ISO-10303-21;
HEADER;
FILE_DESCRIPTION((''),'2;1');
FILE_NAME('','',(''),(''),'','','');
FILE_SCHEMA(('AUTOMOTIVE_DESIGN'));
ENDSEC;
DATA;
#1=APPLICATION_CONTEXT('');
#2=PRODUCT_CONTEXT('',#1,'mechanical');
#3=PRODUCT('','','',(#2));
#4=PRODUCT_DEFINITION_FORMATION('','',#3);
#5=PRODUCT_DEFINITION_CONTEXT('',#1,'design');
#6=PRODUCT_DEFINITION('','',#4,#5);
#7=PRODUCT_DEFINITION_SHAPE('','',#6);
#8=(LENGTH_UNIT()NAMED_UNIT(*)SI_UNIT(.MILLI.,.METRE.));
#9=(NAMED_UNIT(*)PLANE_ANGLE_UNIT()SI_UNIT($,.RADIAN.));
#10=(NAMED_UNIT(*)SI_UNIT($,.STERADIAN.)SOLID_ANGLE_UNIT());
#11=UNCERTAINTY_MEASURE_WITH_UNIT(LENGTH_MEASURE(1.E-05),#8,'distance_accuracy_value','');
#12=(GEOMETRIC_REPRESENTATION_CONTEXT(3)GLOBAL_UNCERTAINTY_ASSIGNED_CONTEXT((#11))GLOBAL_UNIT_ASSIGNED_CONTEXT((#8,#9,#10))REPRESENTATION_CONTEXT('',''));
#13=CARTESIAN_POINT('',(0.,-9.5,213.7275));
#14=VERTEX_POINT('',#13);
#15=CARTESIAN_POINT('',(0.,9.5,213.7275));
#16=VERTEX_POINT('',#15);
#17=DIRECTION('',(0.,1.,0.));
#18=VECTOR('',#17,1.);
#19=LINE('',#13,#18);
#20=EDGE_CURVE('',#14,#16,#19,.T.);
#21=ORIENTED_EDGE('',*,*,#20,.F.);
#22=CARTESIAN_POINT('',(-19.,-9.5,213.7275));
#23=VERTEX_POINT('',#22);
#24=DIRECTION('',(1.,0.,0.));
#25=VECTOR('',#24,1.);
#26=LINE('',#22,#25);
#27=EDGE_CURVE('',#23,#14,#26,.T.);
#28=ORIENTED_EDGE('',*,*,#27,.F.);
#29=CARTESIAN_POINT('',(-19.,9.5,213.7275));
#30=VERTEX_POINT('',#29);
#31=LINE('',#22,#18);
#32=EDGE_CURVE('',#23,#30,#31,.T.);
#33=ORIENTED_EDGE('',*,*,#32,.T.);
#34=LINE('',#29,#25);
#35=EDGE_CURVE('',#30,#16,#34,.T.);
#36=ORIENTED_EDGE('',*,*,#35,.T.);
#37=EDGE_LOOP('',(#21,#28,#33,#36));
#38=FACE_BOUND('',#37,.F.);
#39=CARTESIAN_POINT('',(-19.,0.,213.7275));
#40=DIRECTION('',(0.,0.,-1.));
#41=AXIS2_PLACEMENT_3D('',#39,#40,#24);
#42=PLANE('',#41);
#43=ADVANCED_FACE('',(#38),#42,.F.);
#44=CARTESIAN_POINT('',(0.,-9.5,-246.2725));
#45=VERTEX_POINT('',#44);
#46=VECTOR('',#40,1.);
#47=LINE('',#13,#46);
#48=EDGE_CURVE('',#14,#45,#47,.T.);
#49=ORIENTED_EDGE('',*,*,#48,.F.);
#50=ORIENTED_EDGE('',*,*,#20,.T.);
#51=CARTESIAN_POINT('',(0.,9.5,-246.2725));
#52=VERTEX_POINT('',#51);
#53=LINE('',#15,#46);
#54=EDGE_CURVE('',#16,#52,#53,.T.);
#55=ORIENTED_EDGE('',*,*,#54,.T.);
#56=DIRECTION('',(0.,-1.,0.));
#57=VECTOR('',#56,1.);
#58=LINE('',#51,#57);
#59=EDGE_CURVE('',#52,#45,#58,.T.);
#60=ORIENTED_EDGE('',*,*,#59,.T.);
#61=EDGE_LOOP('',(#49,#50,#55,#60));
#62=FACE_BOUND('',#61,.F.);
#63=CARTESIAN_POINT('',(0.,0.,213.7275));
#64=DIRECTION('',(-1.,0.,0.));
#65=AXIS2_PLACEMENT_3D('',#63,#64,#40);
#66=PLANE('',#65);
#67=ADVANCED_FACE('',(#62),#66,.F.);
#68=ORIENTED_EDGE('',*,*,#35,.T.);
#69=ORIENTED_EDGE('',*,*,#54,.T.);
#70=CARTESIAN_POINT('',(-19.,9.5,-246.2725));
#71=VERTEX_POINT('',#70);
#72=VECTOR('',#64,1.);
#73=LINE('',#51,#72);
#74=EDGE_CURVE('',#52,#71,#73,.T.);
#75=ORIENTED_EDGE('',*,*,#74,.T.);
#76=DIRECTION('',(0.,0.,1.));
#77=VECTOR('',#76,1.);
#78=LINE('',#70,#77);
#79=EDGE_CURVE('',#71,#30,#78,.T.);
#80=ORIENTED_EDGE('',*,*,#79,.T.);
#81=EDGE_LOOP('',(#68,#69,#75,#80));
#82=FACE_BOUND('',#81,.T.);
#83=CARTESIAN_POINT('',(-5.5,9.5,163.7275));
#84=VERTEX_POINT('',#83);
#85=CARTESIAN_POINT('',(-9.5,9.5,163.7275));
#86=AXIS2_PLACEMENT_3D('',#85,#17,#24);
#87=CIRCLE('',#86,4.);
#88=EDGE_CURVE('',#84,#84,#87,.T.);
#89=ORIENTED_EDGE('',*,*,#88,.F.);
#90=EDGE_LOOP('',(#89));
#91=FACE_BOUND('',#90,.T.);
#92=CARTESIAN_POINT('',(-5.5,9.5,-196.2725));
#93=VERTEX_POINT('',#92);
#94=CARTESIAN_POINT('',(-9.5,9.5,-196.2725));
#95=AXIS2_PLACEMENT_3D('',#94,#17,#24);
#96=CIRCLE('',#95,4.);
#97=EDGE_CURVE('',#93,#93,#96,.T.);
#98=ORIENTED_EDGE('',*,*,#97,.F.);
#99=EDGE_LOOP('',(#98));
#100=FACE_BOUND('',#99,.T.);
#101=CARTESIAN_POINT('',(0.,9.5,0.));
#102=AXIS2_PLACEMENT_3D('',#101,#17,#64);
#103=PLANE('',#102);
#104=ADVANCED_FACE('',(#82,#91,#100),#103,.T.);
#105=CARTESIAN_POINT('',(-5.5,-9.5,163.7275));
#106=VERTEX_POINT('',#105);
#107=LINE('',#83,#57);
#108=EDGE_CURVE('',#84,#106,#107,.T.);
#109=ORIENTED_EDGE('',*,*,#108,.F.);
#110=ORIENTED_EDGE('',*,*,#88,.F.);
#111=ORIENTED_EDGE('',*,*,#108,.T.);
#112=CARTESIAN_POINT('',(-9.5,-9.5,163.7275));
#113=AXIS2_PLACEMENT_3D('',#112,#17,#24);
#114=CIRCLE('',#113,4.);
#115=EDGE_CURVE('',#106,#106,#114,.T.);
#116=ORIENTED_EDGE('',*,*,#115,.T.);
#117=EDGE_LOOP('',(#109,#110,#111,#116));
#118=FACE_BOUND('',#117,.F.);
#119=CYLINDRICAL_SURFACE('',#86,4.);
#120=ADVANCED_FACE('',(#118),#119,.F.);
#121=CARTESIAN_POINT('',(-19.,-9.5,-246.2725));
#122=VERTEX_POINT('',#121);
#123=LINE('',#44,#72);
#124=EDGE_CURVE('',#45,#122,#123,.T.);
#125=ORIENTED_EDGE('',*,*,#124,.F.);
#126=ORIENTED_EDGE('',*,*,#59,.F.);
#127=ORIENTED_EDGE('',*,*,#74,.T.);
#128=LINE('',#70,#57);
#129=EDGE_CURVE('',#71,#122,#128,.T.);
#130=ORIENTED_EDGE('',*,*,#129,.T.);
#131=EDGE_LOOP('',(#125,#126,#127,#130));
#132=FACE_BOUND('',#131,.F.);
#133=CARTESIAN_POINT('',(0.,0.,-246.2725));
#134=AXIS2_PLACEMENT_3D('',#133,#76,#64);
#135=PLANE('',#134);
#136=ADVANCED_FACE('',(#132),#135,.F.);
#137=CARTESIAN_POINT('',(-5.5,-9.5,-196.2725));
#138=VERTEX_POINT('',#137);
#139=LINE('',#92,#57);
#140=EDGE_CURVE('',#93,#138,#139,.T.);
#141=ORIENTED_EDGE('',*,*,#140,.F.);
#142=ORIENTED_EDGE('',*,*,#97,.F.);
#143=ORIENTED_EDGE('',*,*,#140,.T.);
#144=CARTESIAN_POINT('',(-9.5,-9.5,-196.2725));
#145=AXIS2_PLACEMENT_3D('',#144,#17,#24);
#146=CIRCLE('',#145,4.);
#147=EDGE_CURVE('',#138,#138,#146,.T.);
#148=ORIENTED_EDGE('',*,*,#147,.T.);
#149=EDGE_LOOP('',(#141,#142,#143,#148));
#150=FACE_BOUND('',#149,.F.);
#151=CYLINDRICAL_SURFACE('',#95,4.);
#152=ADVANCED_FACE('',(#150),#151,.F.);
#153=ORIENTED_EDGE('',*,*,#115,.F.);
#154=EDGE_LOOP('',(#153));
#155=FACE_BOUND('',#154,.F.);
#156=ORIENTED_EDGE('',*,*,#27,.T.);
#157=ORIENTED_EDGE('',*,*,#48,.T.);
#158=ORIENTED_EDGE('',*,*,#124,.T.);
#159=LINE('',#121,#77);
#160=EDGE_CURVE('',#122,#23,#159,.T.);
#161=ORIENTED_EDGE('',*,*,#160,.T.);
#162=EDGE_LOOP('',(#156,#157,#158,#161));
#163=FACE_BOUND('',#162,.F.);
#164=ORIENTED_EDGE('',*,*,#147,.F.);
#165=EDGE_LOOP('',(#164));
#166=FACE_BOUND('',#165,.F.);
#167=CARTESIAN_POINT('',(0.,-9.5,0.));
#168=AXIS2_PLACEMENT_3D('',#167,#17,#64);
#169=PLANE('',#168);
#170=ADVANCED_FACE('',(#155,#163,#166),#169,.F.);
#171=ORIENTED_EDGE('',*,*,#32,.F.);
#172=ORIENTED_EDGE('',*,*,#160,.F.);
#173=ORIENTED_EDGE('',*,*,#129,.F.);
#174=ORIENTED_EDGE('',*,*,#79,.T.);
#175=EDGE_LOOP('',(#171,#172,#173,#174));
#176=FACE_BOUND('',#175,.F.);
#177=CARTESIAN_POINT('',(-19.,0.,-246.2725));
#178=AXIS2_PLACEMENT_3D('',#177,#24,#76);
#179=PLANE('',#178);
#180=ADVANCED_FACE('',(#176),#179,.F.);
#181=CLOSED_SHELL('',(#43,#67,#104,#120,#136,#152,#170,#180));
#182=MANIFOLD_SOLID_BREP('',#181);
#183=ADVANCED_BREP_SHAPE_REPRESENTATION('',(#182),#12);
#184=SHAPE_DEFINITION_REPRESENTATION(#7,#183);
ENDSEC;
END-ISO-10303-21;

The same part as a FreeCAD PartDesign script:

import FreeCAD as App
import Part
import Sketcher
from FreeCAD import Vector


def add_polygon(sketch, points):
    """Adds a closed chain of lines whose ends are joined by coincident constraints."""
    first, n = sketch.GeometryCount, len(points)
    for a, b in zip(points, points[1:] + points[:1]):
        sketch.addGeometry(Part.LineSegment(App.Vector(*a, 0), App.Vector(*b, 0)), False)
    for i in range(n):
        sketch.addConstraint(Sketcher.Constraint("Coincident", first + i, 2, first + (i + 1) % n, 1))

doc = App.newDocument("Part")
body = doc.addObject("PartDesign::Body", "Body")

# Sketch on XZ plane
sketch1 = body.newObject("Sketcher::SketchObject", "Sketch")
sketch1.AttachmentSupport = (doc.getObject("XZ_Plane"), [""])
sketch1.MapMode = "FlatFace"
add_polygon(sketch1, [(-19, -246.2725), (-19, 213.7275), (0, 213.7275), (0, -246.2725)])  # lines 0-3
sketch1.addConstraint([
    Sketcher.Constraint("Vertical", 0),
    Sketcher.Constraint("Horizontal", 1),
    Sketcher.Constraint("Vertical", 2),
    Sketcher.Constraint("Horizontal", 3),
    Sketcher.Constraint("PointOnObject", 1, 2, -2),
    Sketcher.Constraint("DistanceX", 1, 1, 1, 2, 19.0),
    Sketcher.Constraint("DistanceY", 0, 1, 0, 2, 460.0),
    Sketcher.Constraint("DistanceY", -1, 1, 0, 2, 213.7275),
])
pad1 = body.newObject("PartDesign::Pad", "Pad")
pad1.Profile = sketch1
pad1.Length = 19
pad1.Midplane = True

# Sketch on XZ plane
sketch2 = body.newObject("Sketcher::SketchObject", "Sketch001")
sketch2.AttachmentSupport = (doc.getObject("XZ_Plane"), [""])
sketch2.MapMode = "FlatFace"
sketch2.AttachmentOffset = App.Placement(Vector(0, 0, -9.5), App.Rotation())
sketch2.addGeometry([
    Part.Circle(Vector(-9.5, 163.7275, 0), Vector(0, 0, 1), 4),
    Part.Circle(Vector(-9.5, -196.2725, 0), Vector(0, 0, 1), 4),
], False)
sketch2.addConstraint([
    Sketcher.Constraint("Equal", 0, 1),
    Sketcher.Constraint("Vertical", 0, 3, 1, 3),
    Sketcher.Constraint("Diameter", 0, 8.0),
    Sketcher.Constraint("DistanceX", 0, 3, -1, 1, 9.5),
    Sketcher.Constraint("DistanceY", 1, 3, 0, 3, 360.0),
    Sketcher.Constraint("DistanceY", -1, 1, 0, 3, 163.7275),
])
pocket1 = body.newObject("PartDesign::Pocket", "Pocket")
pocket1.Profile = sketch2
pocket1.Length = 19
pocket1.Reversed = True

doc.recompute()
